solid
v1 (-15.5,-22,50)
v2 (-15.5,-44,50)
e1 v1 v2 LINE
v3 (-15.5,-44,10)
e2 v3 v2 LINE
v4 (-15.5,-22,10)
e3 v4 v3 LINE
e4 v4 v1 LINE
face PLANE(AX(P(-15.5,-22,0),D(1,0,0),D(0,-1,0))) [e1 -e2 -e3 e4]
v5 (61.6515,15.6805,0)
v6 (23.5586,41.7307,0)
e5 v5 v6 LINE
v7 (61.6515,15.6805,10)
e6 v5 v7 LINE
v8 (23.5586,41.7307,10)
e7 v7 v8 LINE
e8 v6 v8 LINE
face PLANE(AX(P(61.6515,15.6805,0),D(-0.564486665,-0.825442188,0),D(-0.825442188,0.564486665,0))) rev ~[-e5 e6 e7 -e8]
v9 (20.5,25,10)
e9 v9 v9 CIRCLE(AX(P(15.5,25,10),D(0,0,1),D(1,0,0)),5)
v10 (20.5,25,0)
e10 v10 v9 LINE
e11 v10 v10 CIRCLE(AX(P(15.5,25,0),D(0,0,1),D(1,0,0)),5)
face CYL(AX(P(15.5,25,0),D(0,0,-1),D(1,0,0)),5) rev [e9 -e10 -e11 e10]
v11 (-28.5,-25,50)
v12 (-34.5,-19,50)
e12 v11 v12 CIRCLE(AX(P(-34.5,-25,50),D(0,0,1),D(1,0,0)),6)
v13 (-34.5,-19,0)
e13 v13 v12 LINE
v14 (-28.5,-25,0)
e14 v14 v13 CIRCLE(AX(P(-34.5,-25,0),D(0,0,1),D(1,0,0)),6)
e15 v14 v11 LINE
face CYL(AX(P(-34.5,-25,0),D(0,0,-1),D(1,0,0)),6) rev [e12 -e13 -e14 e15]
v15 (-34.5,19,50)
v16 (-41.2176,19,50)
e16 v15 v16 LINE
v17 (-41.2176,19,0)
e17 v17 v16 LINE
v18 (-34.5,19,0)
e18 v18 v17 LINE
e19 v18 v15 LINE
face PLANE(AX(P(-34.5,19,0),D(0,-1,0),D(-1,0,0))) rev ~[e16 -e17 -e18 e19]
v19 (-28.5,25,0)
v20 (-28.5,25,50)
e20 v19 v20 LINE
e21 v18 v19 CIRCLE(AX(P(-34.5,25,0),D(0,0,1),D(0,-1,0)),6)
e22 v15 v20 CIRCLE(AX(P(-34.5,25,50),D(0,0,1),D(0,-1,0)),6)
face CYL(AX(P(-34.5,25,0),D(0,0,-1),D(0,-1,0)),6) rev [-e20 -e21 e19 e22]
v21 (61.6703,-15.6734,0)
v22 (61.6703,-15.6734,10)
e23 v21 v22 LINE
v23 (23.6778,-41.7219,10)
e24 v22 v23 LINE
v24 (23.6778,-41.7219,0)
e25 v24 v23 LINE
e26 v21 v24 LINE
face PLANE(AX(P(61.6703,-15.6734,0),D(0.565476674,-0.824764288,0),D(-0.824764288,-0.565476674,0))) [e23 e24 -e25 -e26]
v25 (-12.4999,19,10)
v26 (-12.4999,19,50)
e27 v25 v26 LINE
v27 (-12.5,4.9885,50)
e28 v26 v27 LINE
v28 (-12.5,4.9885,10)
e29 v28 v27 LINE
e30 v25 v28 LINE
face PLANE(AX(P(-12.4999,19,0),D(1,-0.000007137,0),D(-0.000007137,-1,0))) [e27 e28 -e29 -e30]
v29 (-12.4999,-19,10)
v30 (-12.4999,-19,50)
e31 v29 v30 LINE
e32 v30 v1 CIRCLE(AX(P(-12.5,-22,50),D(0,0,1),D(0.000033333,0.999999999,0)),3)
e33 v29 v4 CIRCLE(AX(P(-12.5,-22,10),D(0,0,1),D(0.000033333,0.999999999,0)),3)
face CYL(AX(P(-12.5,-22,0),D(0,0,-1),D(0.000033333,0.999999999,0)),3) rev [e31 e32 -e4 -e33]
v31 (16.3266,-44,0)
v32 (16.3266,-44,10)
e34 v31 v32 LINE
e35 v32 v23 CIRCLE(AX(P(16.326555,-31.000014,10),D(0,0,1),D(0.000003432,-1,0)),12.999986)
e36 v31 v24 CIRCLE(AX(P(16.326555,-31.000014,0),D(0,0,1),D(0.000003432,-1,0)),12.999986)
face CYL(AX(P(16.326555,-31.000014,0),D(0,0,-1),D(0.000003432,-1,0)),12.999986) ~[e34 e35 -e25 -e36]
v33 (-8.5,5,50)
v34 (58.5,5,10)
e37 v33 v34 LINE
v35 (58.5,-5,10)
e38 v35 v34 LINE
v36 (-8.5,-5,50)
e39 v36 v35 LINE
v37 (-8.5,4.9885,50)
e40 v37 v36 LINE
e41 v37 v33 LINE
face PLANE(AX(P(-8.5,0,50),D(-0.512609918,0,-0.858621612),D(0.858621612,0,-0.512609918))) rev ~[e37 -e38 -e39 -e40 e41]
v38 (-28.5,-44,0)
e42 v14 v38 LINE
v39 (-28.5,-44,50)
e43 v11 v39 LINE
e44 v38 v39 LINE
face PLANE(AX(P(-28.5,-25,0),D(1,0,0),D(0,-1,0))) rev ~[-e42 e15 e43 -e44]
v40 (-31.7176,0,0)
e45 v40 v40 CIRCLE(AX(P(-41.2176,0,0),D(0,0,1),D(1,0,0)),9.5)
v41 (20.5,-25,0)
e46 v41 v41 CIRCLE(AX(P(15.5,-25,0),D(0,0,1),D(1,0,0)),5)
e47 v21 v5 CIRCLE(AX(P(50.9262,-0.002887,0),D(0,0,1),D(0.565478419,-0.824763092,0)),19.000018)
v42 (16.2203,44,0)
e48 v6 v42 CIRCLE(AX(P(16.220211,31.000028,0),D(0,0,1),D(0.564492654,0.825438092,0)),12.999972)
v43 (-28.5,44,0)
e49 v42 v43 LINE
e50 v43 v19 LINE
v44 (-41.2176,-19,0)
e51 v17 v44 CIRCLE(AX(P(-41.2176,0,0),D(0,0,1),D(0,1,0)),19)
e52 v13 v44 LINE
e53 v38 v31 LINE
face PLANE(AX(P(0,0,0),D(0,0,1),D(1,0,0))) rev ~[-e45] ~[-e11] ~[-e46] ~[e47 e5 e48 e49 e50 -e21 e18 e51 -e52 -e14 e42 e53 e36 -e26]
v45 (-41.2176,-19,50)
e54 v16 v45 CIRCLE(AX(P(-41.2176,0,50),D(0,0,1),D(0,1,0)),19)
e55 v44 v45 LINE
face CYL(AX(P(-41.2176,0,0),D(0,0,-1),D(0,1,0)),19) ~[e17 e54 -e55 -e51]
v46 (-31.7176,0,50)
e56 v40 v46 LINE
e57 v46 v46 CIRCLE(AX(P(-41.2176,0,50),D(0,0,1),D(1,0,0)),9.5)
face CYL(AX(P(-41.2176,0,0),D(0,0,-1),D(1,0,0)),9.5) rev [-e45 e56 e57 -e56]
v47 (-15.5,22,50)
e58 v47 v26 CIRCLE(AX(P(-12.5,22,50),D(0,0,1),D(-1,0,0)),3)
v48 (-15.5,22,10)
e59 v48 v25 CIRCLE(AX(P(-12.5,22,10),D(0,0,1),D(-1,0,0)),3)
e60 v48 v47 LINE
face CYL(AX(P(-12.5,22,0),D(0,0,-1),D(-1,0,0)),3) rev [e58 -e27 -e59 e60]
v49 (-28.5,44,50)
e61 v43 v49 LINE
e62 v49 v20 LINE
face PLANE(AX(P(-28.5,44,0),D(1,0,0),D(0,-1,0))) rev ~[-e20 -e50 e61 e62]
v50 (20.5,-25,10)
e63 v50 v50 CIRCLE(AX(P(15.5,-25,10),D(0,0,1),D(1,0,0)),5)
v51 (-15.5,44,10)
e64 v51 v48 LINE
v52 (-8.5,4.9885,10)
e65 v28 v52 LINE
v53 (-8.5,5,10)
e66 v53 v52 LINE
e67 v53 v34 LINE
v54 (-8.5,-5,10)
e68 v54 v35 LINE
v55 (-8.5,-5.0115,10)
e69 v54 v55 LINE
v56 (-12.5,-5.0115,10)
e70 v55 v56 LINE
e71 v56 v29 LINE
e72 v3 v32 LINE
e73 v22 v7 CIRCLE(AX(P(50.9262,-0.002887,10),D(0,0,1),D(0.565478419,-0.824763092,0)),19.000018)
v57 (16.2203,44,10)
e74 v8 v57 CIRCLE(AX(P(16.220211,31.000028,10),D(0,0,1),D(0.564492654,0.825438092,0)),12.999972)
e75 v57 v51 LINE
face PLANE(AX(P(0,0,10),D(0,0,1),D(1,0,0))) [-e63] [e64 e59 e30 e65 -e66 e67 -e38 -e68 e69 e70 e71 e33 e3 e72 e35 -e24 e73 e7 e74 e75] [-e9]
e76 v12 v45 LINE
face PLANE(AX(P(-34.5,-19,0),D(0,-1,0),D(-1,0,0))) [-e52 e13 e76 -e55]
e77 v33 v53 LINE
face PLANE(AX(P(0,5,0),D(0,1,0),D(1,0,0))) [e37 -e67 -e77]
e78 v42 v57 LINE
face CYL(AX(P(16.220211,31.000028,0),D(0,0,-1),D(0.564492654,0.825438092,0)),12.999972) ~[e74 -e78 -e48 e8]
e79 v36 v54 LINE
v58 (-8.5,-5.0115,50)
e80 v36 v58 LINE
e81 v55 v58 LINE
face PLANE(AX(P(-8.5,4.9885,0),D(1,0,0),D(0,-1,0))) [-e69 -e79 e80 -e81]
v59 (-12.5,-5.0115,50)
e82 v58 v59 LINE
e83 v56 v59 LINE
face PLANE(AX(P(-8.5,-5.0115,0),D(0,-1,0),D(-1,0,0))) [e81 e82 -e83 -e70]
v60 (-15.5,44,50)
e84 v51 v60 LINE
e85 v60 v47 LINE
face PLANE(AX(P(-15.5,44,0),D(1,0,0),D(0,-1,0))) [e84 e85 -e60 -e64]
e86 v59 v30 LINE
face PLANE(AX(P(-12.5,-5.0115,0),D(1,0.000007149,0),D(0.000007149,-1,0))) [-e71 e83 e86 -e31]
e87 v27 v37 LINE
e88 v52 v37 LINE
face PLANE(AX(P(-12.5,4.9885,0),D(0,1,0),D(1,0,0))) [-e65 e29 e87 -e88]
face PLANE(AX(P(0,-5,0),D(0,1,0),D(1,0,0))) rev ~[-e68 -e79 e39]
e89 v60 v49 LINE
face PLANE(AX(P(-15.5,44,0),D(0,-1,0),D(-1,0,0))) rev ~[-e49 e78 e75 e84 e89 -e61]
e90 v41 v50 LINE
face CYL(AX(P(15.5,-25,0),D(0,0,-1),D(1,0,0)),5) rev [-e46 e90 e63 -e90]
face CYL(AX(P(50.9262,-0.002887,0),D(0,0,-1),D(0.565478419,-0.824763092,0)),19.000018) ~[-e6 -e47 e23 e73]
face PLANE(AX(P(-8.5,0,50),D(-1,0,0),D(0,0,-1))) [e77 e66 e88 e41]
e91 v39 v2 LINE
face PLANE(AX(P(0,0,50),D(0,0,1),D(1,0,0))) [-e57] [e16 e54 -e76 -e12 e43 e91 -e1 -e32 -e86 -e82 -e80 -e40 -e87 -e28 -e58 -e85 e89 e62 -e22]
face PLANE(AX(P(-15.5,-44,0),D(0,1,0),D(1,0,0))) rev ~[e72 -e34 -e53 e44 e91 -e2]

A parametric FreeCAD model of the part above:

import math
import FreeCAD as App
import Part
import Sketcher
from FreeCAD import Vector
Q = App.Units.Quantity


def add_polygon(sketch, points):
    """Adds a closed chain of lines whose ends are joined by coincident constraints."""
    first, n = sketch.GeometryCount, len(points)
    for a, b in zip(points, points[1:] + points[:1]):
        sketch.addGeometry(Part.LineSegment(App.Vector(*a, 0), App.Vector(*b, 0)), False)
    for i in range(n):
        sketch.addConstraint(Sketcher.Constraint("Coincident", first + i, 2, first + (i + 1) % n, 1))

doc = App.newDocument("Part")
body = doc.addObject("PartDesign::Body", "Body")

# Sketch on XY plane
sketch1 = body.newObject("Sketcher::SketchObject", "Sketch")
sketch1.AttachmentSupport = (doc.getObject("XY_Plane"), [""])
sketch1.MapMode = "FlatFace"
sketch1.addGeometry([
    Part.LineSegment(Vector(-15.5, 22, 0), Vector(-15.5, 44, 0)),  # 0
    Part.LineSegment(Vector(-15.5, 44, 0), Vector(-28.5, 44, 0)),  # 1
    Part.LineSegment(Vector(-28.5, 44, 0), Vector(-28.5, 25, 0)),  # 2
    Part.ArcOfCircle(Part.Circle(Vector(-34.5, 25, 0), Vector(0, 0, 1), 6), math.radians(-90), math.radians(0)),  # 3
    Part.LineSegment(Vector(-34.5, 19, 0), Vector(-41.2176, 19, 0)),  # 4
    Part.ArcOfCircle(Part.Circle(Vector(-41.2176, 0, 0), Vector(0, 0, 1), 19), math.radians(90), math.radians(270)),  # 5
    Part.LineSegment(Vector(-41.2176, -19, 0), Vector(-34.5, -19, 0)),  # 6
    Part.ArcOfCircle(Part.Circle(Vector(-34.5, -25, 0), Vector(0, 0, 1), 6), math.radians(0), math.radians(90)),  # 7
    Part.LineSegment(Vector(-28.5, -25, 0), Vector(-28.5, -44, 0)),  # 8
    Part.LineSegment(Vector(-28.5, -44, 0), Vector(-15.5, -44, 0)),  # 9
    Part.LineSegment(Vector(-15.5, -44, 0), Vector(-15.5, -22, 0)),  # 10
    Part.ArcOfCircle(Part.Circle(Vector(-12.5, -22, 0), Vector(0, 0, 1), 3), math.radians(89.99809), math.radians(180)),  # 11
    Part.LineSegment(Vector(-12.4999, -19, 0), Vector(-12.5, -5.0115, 0)),  # 12
    Part.LineSegment(Vector(-12.5, -5.0115, 0), Vector(-8.5, -5.0115, 0)),  # 13
    Part.LineSegment(Vector(-8.5, -5.0115, 0), Vector(-8.5, 4.9885, 0)),  # 14
    Part.LineSegment(Vector(-8.5, 4.9885, 0), Vector(-12.5, 4.9885, 0)),  # 15
    Part.LineSegment(Vector(-12.5, 4.9885, 0), Vector(-12.4999, 19, 0)),  # 16
    Part.ArcOfCircle(Part.Circle(Vector(-12.5, 22, 0), Vector(0, 0, 1), 3), math.radians(180), math.radians(270.00191)),  # 17
    Part.Circle(Vector(-41.2176, 0, 0), Vector(0, 0, 1), 9.5),  # 18
], False)
sketch1.addConstraint([
    Sketcher.Constraint("Coincident", 0, 2, 1, 1),
    Sketcher.Constraint("Coincident", 1, 2, 2, 1),
    Sketcher.Constraint("Tangent", 2, 2, 3, 2),
    Sketcher.Constraint("Tangent", 3, 1, 4, 1),
    Sketcher.Constraint("Tangent", 4, 2, 5, 1),
    Sketcher.Constraint("Tangent", 5, 2, 6, 1),
    Sketcher.Constraint("Tangent", 6, 2, 7, 2),
    Sketcher.Constraint("Tangent", 7, 1, 8, 1),
    Sketcher.Constraint("Coincident", 8, 2, 9, 1),
    Sketcher.Constraint("Coincident", 9, 2, 10, 1),
    Sketcher.Constraint("Tangent", 10, 2, 11, 2),
    Sketcher.Constraint("Coincident", 11, 1, 12, 1),
    Sketcher.Constraint("Coincident", 12, 2, 13, 1),
    Sketcher.Constraint("Coincident", 13, 2, 14, 1),
    Sketcher.Constraint("Coincident", 14, 2, 15, 1),
    Sketcher.Constraint("Coincident", 15, 2, 16, 1),
    Sketcher.Constraint("Coincident", 16, 2, 17, 2),
    Sketcher.Constraint("Tangent", 17, 1, 0, 1),
    Sketcher.Constraint("Vertical", 0),
    Sketcher.Constraint("Horizontal", 1),
    Sketcher.Constraint("Vertical", 2),
    Sketcher.Constraint("Horizontal", 4),
    Sketcher.Constraint("Horizontal", 6),
    Sketcher.Constraint("Vertical", 8),
    Sketcher.Constraint("Horizontal", 9),
    Sketcher.Constraint("Vertical", 10),
    Sketcher.Constraint("Vertical", 12),
    Sketcher.Constraint("Horizontal", 13),
    Sketcher.Constraint("Vertical", 14),
    Sketcher.Constraint("Horizontal", 15),
    Sketcher.Constraint("Vertical", 16),
    Sketcher.Constraint("Coincident", 18, 3, 5, 3),
    Sketcher.Constraint("Equal", 3, 7),
    Sketcher.Constraint("Equal", 11, 17),
    Sketcher.Constraint("Symmetric", 3, 3, 7, 3, -1),
    Sketcher.Constraint("Symmetric", 11, 3, 17, 3, -1),
    Sketcher.Constraint("Horizontal", 6, 2, 11, 1),
    Sketcher.Constraint("Vertical", 17, 3, 11, 1),
    Sketcher.Constraint("Vertical", 12, 2, 15, 2),
    Sketcher.Constraint("Equal", 2, 8),
    Sketcher.Constraint("Diameter", 18, Q("19 mm")),
    Sketcher.Constraint("Radius", 3, Q("6 mm")),
    Sketcher.Constraint("Radius", 5, Q("19 mm")),
    Sketcher.Constraint("Radius", 11, Q("3 mm")),
    Sketcher.Constraint("DistanceX", 1, 2, 1, 1, Q("13 mm")),
    Sketcher.Constraint("DistanceY", 2, 2, 2, 1, Q("19 mm")),
    Sketcher.Constraint("DistanceY", 14, 1, 14, 2, Q("10 mm")),
    Sketcher.Constraint("DistanceX", 13, 1, 13, 2, Q("4 mm")),
    Sketcher.Constraint("DistanceX", 3, 3, -1, 1, Q("34.5 mm")),
    Sketcher.Constraint("DistanceX", 4, 2, 4, 1, Q("6.7176 mm")),
    Sketcher.Constraint("DistanceY", 12, 1, 12, 2, Q("13.9885 mm")),
])
pad1 = body.newObject("PartDesign::Pad", "Pad")
pad1.Profile = sketch1
pad1.Length = 50

# Sketch on XY plane
sketch2 = body.newObject("Sketcher::SketchObject", "Sketch001")
sketch2.AttachmentSupport = (doc.getObject("XY_Plane"), [""])
sketch2.MapMode = "FlatFace"
sketch2.addGeometry([
    Part.ArcOfCircle(Part.Circle(Vector(16.2203, 31, 0), Vector(0, 0, 1), 12.999945), math.radians(55.633324), math.radians(90)),  # 0
    Part.LineSegment(Vector(16.2203, 44, 0), Vector(-15.5, 44, 0)),  # 1
    Part.LineSegment(Vector(-15.5, 44, 0), Vector(-15.5, 22, 0)),  # 2
    Part.ArcOfCircle(Part.Circle(Vector(-12.5, 22, 0), Vector(0, 0, 1), 3), math.radians(180), math.radians(270.00191)),  # 3
    Part.LineSegment(Vector(-12.4999, 19, 0), Vector(-12.5, 4.9885, 0)),  # 4
    Part.LineSegment(Vector(-12.5, 4.9885, 0), Vector(-8.5, 4.9885, 0)),  # 5
    Part.LineSegment(Vector(-8.5, 4.9885, 0), Vector(-8.5, -5.0115, 0)),  # 6
    Part.LineSegment(Vector(-8.5, -5.0115, 0), Vector(-12.5, -5.0115, 0)),  # 7
    Part.LineSegment(Vector(-12.5, -5.0115, 0), Vector(-12.4999, -19, 0)),  # 8
    Part.ArcOfCircle(Part.Circle(Vector(-12.5, -22, 0), Vector(0, 0, 1), 3), math.radians(89.99809), math.radians(180)),  # 9
    Part.LineSegment(Vector(-15.5, -22, 0), Vector(-15.5, -44, 0)),  # 10
    Part.LineSegment(Vector(-15.5, -44, 0), Vector(16.3266, -44, 0)),  # 11
    Part.ArcOfCircle(Part.Circle(Vector(16.3266, -31, 0), Vector(0, 0, 1), 13), math.radians(-90), math.radians(-55.5645)),  # 12
    Part.LineSegment(Vector(23.6778, -41.7219, 0), Vector(61.6703, -15.6734, 0)),  # 13
    Part.ArcOfCircle(Part.Circle(Vector(50.9262, -0.0029, 0), Vector(0, 0, 1), 19.000007), math.radians(-55.564457), math.radians(55.633213)),  # 14
    Part.LineSegment(Vector(61.6515, 15.6805, 0), Vector(23.5586, 41.7307, 0)),  # 15
    Part.Circle(Vector(15.5, -25, 0), Vector(0, 0, 1), 5),  # 16
    Part.Circle(Vector(15.5, 25, 0), Vector(0, 0, 1), 5),  # 17
], False)
sketch2.addConstraint([
    Sketcher.Constraint("Tangent", 0, 2, 1, 1),
    Sketcher.Constraint("Coincident", 1, 2, 2, 1),
    Sketcher.Constraint("Tangent", 2, 2, 3, 1),
    Sketcher.Constraint("Coincident", 3, 2, 4, 1),
    Sketcher.Constraint("Coincident", 4, 2, 5, 1),
    Sketcher.Constraint("Coincident", 5, 2, 6, 1),
    Sketcher.Constraint("Coincident", 6, 2, 7, 1),
    Sketcher.Constraint("Coincident", 7, 2, 8, 1),
    Sketcher.Constraint("Coincident", 8, 2, 9, 1),
    Sketcher.Constraint("Tangent", 9, 2, 10, 1),
    Sketcher.Constraint("Coincident", 10, 2, 11, 1),
    Sketcher.Constraint("Tangent", 11, 2, 12, 1),
    Sketcher.Constraint("Tangent", 12, 2, 13, 1),
    Sketcher.Constraint("Tangent", 13, 2, 14, 1),
    Sketcher.Constraint("Tangent", 14, 2, 15, 1),
    Sketcher.Constraint("Tangent", 15, 2, 0, 1),
    Sketcher.Constraint("Horizontal", 1),
    Sketcher.Constraint("Vertical", 2),
    Sketcher.Constraint("Vertical", 4),
    Sketcher.Constraint("Horizontal", 5),
    Sketcher.Constraint("Vertical", 6),
    Sketcher.Constraint("Horizontal", 7),
    Sketcher.Constraint("Vertical", 8),
    Sketcher.Constraint("Vertical", 10),
    Sketcher.Constraint("Horizontal", 11),
    Sketcher.Constraint("Equal", 3, 9),
    Sketcher.Constraint("Equal", 0, 12),
    Sketcher.Constraint("Equal", 16, 17),
    Sketcher.Constraint("Symmetric", 3, 3, 9, 3, -1),
    Sketcher.Constraint("Symmetric", 16, 3, 17, 3, -1),
    Sketcher.Constraint("Vertical", 9, 3, 3, 2),
    Sketcher.Constraint("Vertical", 4, 2, 7, 2),
    Sketcher.Constraint("Equal", 2, 10),
    Sketcher.Constraint("Diameter", 16, Q("10 mm")),
    Sketcher.Constraint("Radius", 0, Q("13 mm")),
    Sketcher.Constraint("Radius", 3, Q("3 mm")),
    Sketcher.Constraint("Radius", 14, Q("19 mm")),
    Sketcher.Constraint("DistanceY", 6, 2, 6, 1, Q("10 mm")),
    Sketcher.Constraint("DistanceY", -1, 1, 0, 3, Q("31 mm")),
    Sketcher.Constraint("DistanceY", -1, 1, 3, 2, Q("19 mm")),
    Sketcher.Constraint("DistanceY", 12, 3, 16, 3, Q("6 mm")),
    Sketcher.Constraint("DistanceX", 1, 2, 17, 3, Q("31 mm")),
    Sketcher.Constraint("DistanceX", 5, 1, 5, 2, Q("4 mm")),
    Sketcher.Constraint("DistanceX", 3, 3, -1, 1, Q("12.5 mm")),
    Sketcher.Constraint("DistanceX", 1, 2, 1, 1, Q("31.7203 mm")),
    Sketcher.Constraint("DistanceX", 11, 1, 11, 2, Q("31.8266 mm")),
    Sketcher.Constraint("DistanceY", 4, 2, 4, 1, Q("14.0115 mm")),
    Sketcher.Constraint("DistanceY", 14, 3, -1, 1, Q("0.003 mm")),
    Sketcher.Constraint("DistanceY", 12, 2, -1, 1, Q("41.722 mm")),
])
pad2 = body.newObject("PartDesign::Pad", "Pad001")
pad2.Profile = sketch2
pad2.Length = 10

# Sketch on XZ plane
sketch3 = body.newObject("Sketcher::SketchObject", "Sketch002")
sketch3.AttachmentSupport = (doc.getObject("XZ_Plane"), [""])
sketch3.MapMode = "FlatFace"
add_polygon(sketch3, [(-8.5, 10), (-8.5, 50), (58.5, 10)])  # lines 0-2
sketch3.addConstraint([
    Sketcher.Constraint("Vertical", 0),
    Sketcher.Constraint("Horizontal", 2),
    Sketcher.Constraint("DistanceX", 2, 2, 2, 1, Q("67 mm")),
    Sketcher.Constraint("DistanceY", 0, 1, 0, 2, Q("40 mm")),
    Sketcher.Constraint("DistanceY", -1, 1, 1, 2, Q("10 mm")),
    Sketcher.Constraint("DistanceX", 0, 2, -1, 1, Q("8.5 mm")),
])
pad3 = body.newObject("PartDesign::Pad", "Pad002")
pad3.Profile = sketch3
pad3.Length = 10
pad3.Midplane = True

doc.recompute()
